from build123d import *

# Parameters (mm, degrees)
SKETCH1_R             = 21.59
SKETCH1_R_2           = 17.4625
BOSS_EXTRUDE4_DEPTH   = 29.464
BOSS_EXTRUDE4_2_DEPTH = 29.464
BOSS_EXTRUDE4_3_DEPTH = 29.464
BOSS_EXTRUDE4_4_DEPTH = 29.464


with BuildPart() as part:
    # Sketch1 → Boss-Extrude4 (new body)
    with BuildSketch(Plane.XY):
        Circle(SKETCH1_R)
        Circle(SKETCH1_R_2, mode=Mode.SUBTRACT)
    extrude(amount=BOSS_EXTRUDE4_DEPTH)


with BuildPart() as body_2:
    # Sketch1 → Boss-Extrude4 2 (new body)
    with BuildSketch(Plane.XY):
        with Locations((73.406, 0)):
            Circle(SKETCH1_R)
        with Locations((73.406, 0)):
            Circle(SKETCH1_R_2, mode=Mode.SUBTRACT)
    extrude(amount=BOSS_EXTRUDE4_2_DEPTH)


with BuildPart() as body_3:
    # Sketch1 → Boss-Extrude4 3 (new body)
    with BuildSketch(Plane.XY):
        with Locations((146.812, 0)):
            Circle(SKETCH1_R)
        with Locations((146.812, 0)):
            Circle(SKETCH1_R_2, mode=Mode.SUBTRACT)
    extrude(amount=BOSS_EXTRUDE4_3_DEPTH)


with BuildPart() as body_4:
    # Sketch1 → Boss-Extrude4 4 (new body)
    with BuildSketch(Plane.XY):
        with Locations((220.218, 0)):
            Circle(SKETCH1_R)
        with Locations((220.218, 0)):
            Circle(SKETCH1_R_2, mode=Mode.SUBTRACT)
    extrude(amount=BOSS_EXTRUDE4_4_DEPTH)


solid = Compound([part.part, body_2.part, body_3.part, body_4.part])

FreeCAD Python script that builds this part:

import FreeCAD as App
import Part
import Sketcher
from FreeCAD import Vector
Q = App.Units.Quantity

doc = App.newDocument("Part")
body = doc.addObject("PartDesign::Body", "Body")

# Sketch on XY plane
sketch1 = body.newObject("Sketcher::SketchObject", "Sketch")
sketch1.AttachmentSupport = (doc.getObject("XY_Plane"), [""])
sketch1.MapMode = "FlatFace"
sketch1.addGeometry(Part.Circle(Vector(0, 0, 0), Vector(0, 0, 1), 22), False)
sketch1.addGeometry(Part.Circle(Vector(0, 0, 0), Vector(0, 0, 1), 17), False)
sketch1.addConstraint(Sketcher.Constraint("Coincident", 0, 3, -1, 1))
sketch1.addConstraint(Sketcher.Constraint("Coincident", 1, 3, -1, 1))
sketch1.addConstraint(Sketcher.Constraint("Diameter", 0, Q("1.7 in")))
sketch1.addConstraint(Sketcher.Constraint("Diameter", 1, Q("1.375 in")))
pad1 = body.newObject("PartDesign::Pad", "Pad")
pad1.Profile = sketch1
pad1.Length = Q("1.16 in")
body2 = doc.addObject("PartDesign::Body", "Body001")

# Sketch on XY plane
sketch2 = body2.newObject("Sketcher::SketchObject", "Sketch001")
sketch2.AttachmentSupport = (doc.getObject("XY_Plane001"), [""])
sketch2.MapMode = "FlatFace"
sketch2.addGeometry(Part.Circle(Vector(73, 0, 0), Vector(0, 0, 1), 22), False)
sketch2.addGeometry(Part.Circle(Vector(73, 0, 0), Vector(0, 0, 1), 17), False)
sketch2.addConstraint(Sketcher.Constraint("Coincident", 1, 3, 0, 3))
sketch2.addConstraint(Sketcher.Constraint("PointOnObject", 0, 3, -1))
sketch2.addConstraint(Sketcher.Constraint("Diameter", 0, Q("1.7 in")))
sketch2.addConstraint(Sketcher.Constraint("Diameter", 1, Q("1.375 in")))
sketch2.addConstraint(Sketcher.Constraint("DistanceX", -1, 1, 0, 3, Q("2.89 in")))
pad2 = body2.newObject("PartDesign::Pad", "Pad001")
pad2.Profile = sketch2
pad2.Length = Q("1.16 in")
body3 = doc.addObject("PartDesign::Body", "Body002")

# Sketch on XY plane
sketch3 = body3.newObject("Sketcher::SketchObject", "Sketch002")
sketch3.AttachmentSupport = (doc.getObject("XY_Plane002"), [""])
sketch3.MapMode = "FlatFace"
sketch3.addGeometry(Part.Circle(Vector(147, 0, 0), Vector(0, 0, 1), 22), False)
sketch3.addGeometry(Part.Circle(Vector(147, 0, 0), Vector(0, 0, 1), 17), False)
sketch3.addConstraint(Sketcher.Constraint("Coincident", 1, 3, 0, 3))
sketch3.addConstraint(Sketcher.Constraint("PointOnObject", 0, 3, -1))
sketch3.addConstraint(Sketcher.Constraint("Diameter", 0, Q("1.7 in")))
sketch3.addConstraint(Sketcher.Constraint("Diameter", 1, Q("1.375 in")))
sketch3.addConstraint(Sketcher.Constraint("DistanceX", -1, 1, 0, 3, Q("5.78 in")))
pad3 = body3.newObject("PartDesign::Pad", "Pad002")
pad3.Profile = sketch3
pad3.Length = Q("1.16 in")
body4 = doc.addObject("PartDesign::Body", "Body003")

# Sketch on XY plane
sketch4 = body4.newObject("Sketcher::SketchObject", "Sketch003")
sketch4.AttachmentSupport = (doc.getObject("XY_Plane003"), [""])
sketch4.MapMode = "FlatFace"
sketch4.addGeometry(Part.Circle(Vector(220, 0, 0), Vector(0, 0, 1), 22), False)
sketch4.addGeometry(Part.Circle(Vector(220, 0, 0), Vector(0, 0, 1), 17), False)
sketch4.addConstraint(Sketcher.Constraint("Coincident", 1, 3, 0, 3))
sketch4.addConstraint(Sketcher.Constraint("PointOnObject", 0, 3, -1))
sketch4.addConstraint(Sketcher.Constraint("Diameter", 0, Q("1.7 in")))
sketch4.addConstraint(Sketcher.Constraint("Diameter", 1, Q("1.375 in")))
sketch4.addConstraint(Sketcher.Constraint("DistanceX", -1, 1, 0, 3, Q("8.67 in")))
pad4 = body4.newObject("PartDesign::Pad", "Pad003")
pad4.Profile = sketch4
pad4.Length = Q("1.16 in")

doc.recompute()
